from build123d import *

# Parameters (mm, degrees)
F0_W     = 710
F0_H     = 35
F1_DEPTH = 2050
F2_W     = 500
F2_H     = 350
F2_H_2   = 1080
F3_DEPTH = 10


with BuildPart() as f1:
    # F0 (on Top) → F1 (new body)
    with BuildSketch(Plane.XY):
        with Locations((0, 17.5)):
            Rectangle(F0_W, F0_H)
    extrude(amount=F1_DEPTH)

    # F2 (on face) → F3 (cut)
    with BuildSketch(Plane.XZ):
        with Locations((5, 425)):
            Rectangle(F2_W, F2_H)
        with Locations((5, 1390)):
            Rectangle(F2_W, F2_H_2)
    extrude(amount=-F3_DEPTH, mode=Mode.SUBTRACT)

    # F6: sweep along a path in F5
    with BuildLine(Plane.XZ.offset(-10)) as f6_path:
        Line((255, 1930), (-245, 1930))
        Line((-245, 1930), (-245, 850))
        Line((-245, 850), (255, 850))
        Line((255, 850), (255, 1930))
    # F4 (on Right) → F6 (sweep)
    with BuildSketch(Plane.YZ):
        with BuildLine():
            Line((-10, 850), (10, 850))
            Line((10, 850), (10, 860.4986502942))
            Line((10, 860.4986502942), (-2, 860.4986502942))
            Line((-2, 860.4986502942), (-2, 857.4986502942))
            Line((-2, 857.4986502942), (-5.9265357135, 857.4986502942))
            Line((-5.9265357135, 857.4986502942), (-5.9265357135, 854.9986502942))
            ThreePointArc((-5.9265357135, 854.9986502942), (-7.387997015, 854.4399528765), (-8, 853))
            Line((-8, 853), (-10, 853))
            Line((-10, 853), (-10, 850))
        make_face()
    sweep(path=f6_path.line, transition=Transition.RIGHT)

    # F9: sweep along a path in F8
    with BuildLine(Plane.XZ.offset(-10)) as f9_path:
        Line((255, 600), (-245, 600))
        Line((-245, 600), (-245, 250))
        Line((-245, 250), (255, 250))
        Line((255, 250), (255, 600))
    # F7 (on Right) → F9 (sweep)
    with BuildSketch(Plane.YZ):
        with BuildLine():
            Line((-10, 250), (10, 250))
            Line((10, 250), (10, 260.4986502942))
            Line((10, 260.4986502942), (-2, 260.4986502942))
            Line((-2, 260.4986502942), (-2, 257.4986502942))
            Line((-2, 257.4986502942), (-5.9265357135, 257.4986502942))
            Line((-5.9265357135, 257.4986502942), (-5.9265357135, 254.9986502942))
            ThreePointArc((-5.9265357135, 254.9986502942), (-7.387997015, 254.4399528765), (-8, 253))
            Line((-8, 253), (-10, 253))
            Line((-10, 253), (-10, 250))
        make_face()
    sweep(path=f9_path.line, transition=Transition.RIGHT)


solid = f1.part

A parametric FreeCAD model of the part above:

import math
import FreeCAD as App
import Part
import Sketcher

V = App.Vector


def add_polygon(sketch, points):
    """Adds a closed chain of lines whose ends are joined by coincident constraints."""
    first, n = sketch.GeometryCount, len(points)
    for a, b in zip(points, points[1:] + points[:1]):
        sketch.addGeometry(Part.LineSegment(App.Vector(*a, 0), App.Vector(*b, 0)), False)
    for i in range(n):
        sketch.addConstraint(Sketcher.Constraint("Coincident", first + i, 2, first + (i + 1) % n, 1))

doc = App.newDocument("Part")
body = doc.addObject("PartDesign::Body", "Body")

sketch1 = doc.addObject("Sketcher::SketchObject", "Sketch")
body.addObject(sketch1)
sketch1.AttachmentSupport = (doc.XY_Plane, [""])
sketch1.MapMode = "FlatFace"
add_polygon(sketch1, [(-355, 35), (-355, 0), (355, 0), (355, 35)])
sketch1.addConstraint(Sketcher.Constraint("Vertical", 0))
sketch1.addConstraint(Sketcher.Constraint("Horizontal", 1))
sketch1.addConstraint(Sketcher.Constraint("Vertical", 2))
sketch1.addConstraint(Sketcher.Constraint("Horizontal", 3))
sketch1.addConstraint(Sketcher.Constraint("Symmetric", 0, 2, 1, 2, -1, 1))
sketch1.addConstraint(Sketcher.Constraint("DistanceX", 1, 1, 1, 2, 710.0))
sketch1.addConstraint(Sketcher.Constraint("DistanceY", 0, 2, 0, 1, 35.0))
pad1 = doc.addObject("PartDesign::Pad", "Pad")
body.addObject(pad1)
pad1.Profile = sketch1
pad1.Length = 2050

sketch2 = doc.addObject("Sketcher::SketchObject", "Sketch001")
body.addObject(sketch2)
sketch2.AttachmentSupport = (doc.XZ_Plane, [""])
sketch2.MapMode = "FlatFace"
add_polygon(sketch2, [(-245, 600), (-245, 250), (255, 250), (255, 600)])
add_polygon(sketch2, [(-245, 1930), (-245, 850), (255, 850), (255, 1930)])
sketch2.addConstraint(Sketcher.Constraint("Vertical", 0))
sketch2.addConstraint(Sketcher.Constraint("Horizontal", 1))
sketch2.addConstraint(Sketcher.Constraint("Vertical", 2))
sketch2.addConstraint(Sketcher.Constraint("Horizontal", 3))
sketch2.addConstraint(Sketcher.Constraint("Vertical", 4))
sketch2.addConstraint(Sketcher.Constraint("Horizontal", 5))
sketch2.addConstraint(Sketcher.Constraint("Vertical", 6))
sketch2.addConstraint(Sketcher.Constraint("Horizontal", 7))
sketch2.addConstraint(Sketcher.Constraint("Vertical", 3, 2, 4, 2))
sketch2.addConstraint(Sketcher.Constraint("Vertical", 2, 2, 5, 2))
sketch2.addConstraint(Sketcher.Constraint("DistanceX", 1, 1, 1, 2, 500.0))
sketch2.addConstraint(Sketcher.Constraint("DistanceY", 0, 2, 0, 1, 350.0))
sketch2.addConstraint(Sketcher.Constraint("DistanceY", 4, 2, 4, 1, 1080.0))
sketch2.addConstraint(Sketcher.Constraint("DistanceX", 0, 2, -1, 1, 245.0))
sketch2.addConstraint(Sketcher.Constraint("DistanceY", -1, 1, 0, 2, 250.0))
sketch2.addConstraint(Sketcher.Constraint("DistanceY", -1, 1, 4, 2, 850.0))
pocket1 = doc.addObject("PartDesign::Pocket", "Pocket")
body.addObject(pocket1)
pocket1.Profile = sketch2
pocket1.Length = 10

sketch3 = doc.addObject("Sketcher::SketchObject", "Sketch002")
body.addObject(sketch3)
sketch3.AttachmentSupport = (doc.YZ_Plane, [""])
sketch3.MapMode = "FlatFace"
sketch3.addGeometry(Part.LineSegment(V(-10, 850, 0), V(10, 850, 0)), False)
sketch3.addGeometry(Part.LineSegment(V(10, 850, 0), V(10, 860.49865, 0)), False)
sketch3.addGeometry(Part.LineSegment(V(10, 860.49865, 0), V(-2, 860.49865, 0)), False)
sketch3.addGeometry(Part.LineSegment(V(-2, 860.49865, 0), V(-2, 857.49865, 0)), False)
sketch3.addGeometry(Part.LineSegment(V(-2, 857.49865, 0), V(-5.926536, 857.49865, 0)), False)
sketch3.addGeometry(Part.LineSegment(V(-5.926536, 857.49865, 0), V(-5.926536, 854.99865, 0)), False)
sketch3.addGeometry(Part.ArcOfCircle(Part.Circle(V(-6, 853, 0), V(0, 0, 1), 2), math.radians(87.89493), math.radians(180)), False)
sketch3.addGeometry(Part.LineSegment(V(-8, 853, 0), V(-10, 853, 0)), False)
sketch3.addGeometry(Part.LineSegment(V(-10, 853, 0), V(-10, 850, 0)), False)
sketch3.addConstraint(Sketcher.Constraint("Coincident", 0, 2, 1, 1))
sketch3.addConstraint(Sketcher.Constraint("Coincident", 1, 2, 2, 1))
sketch3.addConstraint(Sketcher.Constraint("Coincident", 2, 2, 3, 1))
sketch3.addConstraint(Sketcher.Constraint("Coincident", 3, 2, 4, 1))
sketch3.addConstraint(Sketcher.Constraint("Coincident", 4, 2, 5, 1))
sketch3.addConstraint(Sketcher.Constraint("Coincident", 5, 2, 6, 1))
sketch3.addConstraint(Sketcher.Constraint("Coincident", 6, 2, 7, 1))
sketch3.addConstraint(Sketcher.Constraint("Coincident", 7, 2, 8, 1))
sketch3.addConstraint(Sketcher.Constraint("Coincident", 8, 2, 0, 1))
sketch3.addConstraint(Sketcher.Constraint("Horizontal", 0))
sketch3.addConstraint(Sketcher.Constraint("Vertical", 1))
sketch3.addConstraint(Sketcher.Constraint("Horizontal", 2))
sketch3.addConstraint(Sketcher.Constraint("Vertical", 3))
sketch3.addConstraint(Sketcher.Constraint("Horizontal", 4))
sketch3.addConstraint(Sketcher.Constraint("Vertical", 5))
sketch3.addConstraint(Sketcher.Constraint("Horizontal", 7))
sketch3.addConstraint(Sketcher.Constraint("Vertical", 8))
sketch3.addConstraint(Sketcher.Constraint("Equal", 3, 8))
sketch3.addConstraint(Sketcher.Constraint("Radius", 6, 2.0))
sketch3.addConstraint(Sketcher.Constraint("DistanceX", 0, 1, 0, 2, 20.0))
sketch3.addConstraint(Sketcher.Constraint("DistanceX", 2, 2, 2, 1, 12.0))
sketch3.addConstraint(Sketcher.Constraint("DistanceX", 7, 2, 7, 1, 2.0))
sketch3.addConstraint(Sketcher.Constraint("DistanceY", 3, 2, 3, 1, 3.0))
sketch3.addConstraint(Sketcher.Constraint("DistanceY", 5, 2, 5, 1, 2.5))
sketch3.addConstraint(Sketcher.Constraint("DistanceX", 6, 3, -1, 1, 6.0))
sketch3.addConstraint(Sketcher.Constraint("DistanceY", -1, 1, 6, 3, 853.0))
sketch3.addConstraint(Sketcher.Constraint("DistanceY", -1, 1, 0, 2, 850.0))
sketch3.addConstraint(Sketcher.Constraint("DistanceY", 1, 1, 1, 2, 10.49865))

sketch4 = doc.addObject("Sketcher::SketchObject", "Sketch003")
body.addObject(sketch4)
sketch4.AttachmentSupport = (doc.XZ_Plane, [""])
sketch4.MapMode = "FlatFace"
sketch4.AttachmentOffset = App.Placement(V(0, 0, -10), App.Rotation())
add_polygon(sketch4, [(255, 1930), (-245, 1930), (-245, 850), (255, 850)])
sketch4.addConstraint(Sketcher.Constraint("Horizontal", 0))
sketch4.addConstraint(Sketcher.Constraint("Vertical", 1))
sketch4.addConstraint(Sketcher.Constraint("Horizontal", 2))
sketch4.addConstraint(Sketcher.Constraint("Vertical", 3))
sketch4.addConstraint(Sketcher.Constraint("DistanceX", 0, 2, 0, 1, 500.0))
sketch4.addConstraint(Sketcher.Constraint("DistanceY", 1, 2, 1, 1, 1080.0))
sketch4.addConstraint(Sketcher.Constraint("DistanceX", 0, 2, -1, 1, 245.0))
sketch4.addConstraint(Sketcher.Constraint("DistanceY", -1, 1, 0, 2, 1930.0))
doc.recompute()

additivepipe = doc.addObject("PartDesign::AdditivePipe", "AdditivePipe")
body.addObject(additivepipe)
additivepipe.Profile = sketch3
additivepipe.Spine = (sketch4, ["Edge1", "Edge2", "Edge3", "Edge4"])
additivepipe.Transition = "Right corner"

sketch5 = doc.addObject("Sketcher::SketchObject", "Sketch004")
body.addObject(sketch5)
sketch5.AttachmentSupport = (doc.YZ_Plane, [""])
sketch5.MapMode = "FlatFace"
sketch5.addGeometry(Part.LineSegment(V(-10, 250, 0), V(10, 250, 0)), False)
sketch5.addGeometry(Part.LineSegment(V(10, 250, 0), V(10, 260.49865, 0)), False)
sketch5.addGeometry(Part.LineSegment(V(10, 260.49865, 0), V(-2, 260.49865, 0)), False)
sketch5.addGeometry(Part.LineSegment(V(-2, 260.49865, 0), V(-2, 257.49865, 0)), False)
sketch5.addGeometry(Part.LineSegment(V(-2, 257.49865, 0), V(-5.926536, 257.49865, 0)), False)
sketch5.addGeometry(Part.LineSegment(V(-5.926536, 257.49865, 0), V(-5.926536, 254.99865, 0)), False)
sketch5.addGeometry(Part.ArcOfCircle(Part.Circle(V(-6, 253, 0), V(0, 0, 1), 2), math.radians(87.89493), math.radians(180)), False)
sketch5.addGeometry(Part.LineSegment(V(-8, 253, 0), V(-10, 253, 0)), False)
sketch5.addGeometry(Part.LineSegment(V(-10, 253, 0), V(-10, 250, 0)), False)
sketch5.addConstraint(Sketcher.Constraint("Coincident", 0, 2, 1, 1))
sketch5.addConstraint(Sketcher.Constraint("Coincident", 1, 2, 2, 1))
sketch5.addConstraint(Sketcher.Constraint("Coincident", 2, 2, 3, 1))
sketch5.addConstraint(Sketcher.Constraint("Coincident", 3, 2, 4, 1))
sketch5.addConstraint(Sketcher.Constraint("Coincident", 4, 2, 5, 1))
sketch5.addConstraint(Sketcher.Constraint("Coincident", 5, 2, 6, 1))
sketch5.addConstraint(Sketcher.Constraint("Coincident", 6, 2, 7, 1))
sketch5.addConstraint(Sketcher.Constraint("Coincident", 7, 2, 8, 1))
sketch5.addConstraint(Sketcher.Constraint("Coincident", 8, 2, 0, 1))
sketch5.addConstraint(Sketcher.Constraint("Horizontal", 0))
sketch5.addConstraint(Sketcher.Constraint("Vertical", 1))
sketch5.addConstraint(Sketcher.Constraint("Horizontal", 2))
sketch5.addConstraint(Sketcher.Constraint("Vertical", 3))
sketch5.addConstraint(Sketcher.Constraint("Horizontal", 4))
sketch5.addConstraint(Sketcher.Constraint("Vertical", 5))
sketch5.addConstraint(Sketcher.Constraint("Horizontal", 7))
sketch5.addConstraint(Sketcher.Constraint("Vertical", 8))
sketch5.addConstraint(Sketcher.Constraint("Equal", 3, 8))
sketch5.addConstraint(Sketcher.Constraint("Radius", 6, 2.0))
sketch5.addConstraint(Sketcher.Constraint("DistanceX", 0, 1, 0, 2, 20.0))
sketch5.addConstraint(Sketcher.Constraint("DistanceX", 2, 2, 2, 1, 12.0))
sketch5.addConstraint(Sketcher.Constraint("DistanceX", 7, 2, 7, 1, 2.0))
sketch5.addConstraint(Sketcher.Constraint("DistanceY", 3, 2, 3, 1, 3.0))
sketch5.addConstraint(Sketcher.Constraint("DistanceY", 5, 2, 5, 1, 2.5))
sketch5.addConstraint(Sketcher.Constraint("DistanceX", 6, 3, -1, 1, 6.0))
sketch5.addConstraint(Sketcher.Constraint("DistanceY", -1, 1, 6, 3, 253.0))
sketch5.addConstraint(Sketcher.Constraint("DistanceY", -1, 1, 0, 2, 250.0))
sketch5.addConstraint(Sketcher.Constraint("DistanceY", 1, 1, 1, 2, 10.49865))

sketch6 = doc.addObject("Sketcher::SketchObject", "Sketch005")
body.addObject(sketch6)
sketch6.AttachmentSupport = (doc.XZ_Plane, [""])
sketch6.MapMode = "FlatFace"
sketch6.AttachmentOffset = App.Placement(V(0, 0, -10), App.Rotation())
add_polygon(sketch6, [(255, 600), (-245, 600), (-245, 250), (255, 250)])
sketch6.addConstraint(Sketcher.Constraint("Horizontal", 0))
sketch6.addConstraint(Sketcher.Constraint("Vertical", 1))
sketch6.addConstraint(Sketcher.Constraint("Horizontal", 2))
sketch6.addConstraint(Sketcher.Constraint("Vertical", 3))
sketch6.addConstraint(Sketcher.Constraint("DistanceX", 0, 2, 0, 1, 500.0))
sketch6.addConstraint(Sketcher.Constraint("DistanceY", 1, 2, 1, 1, 350.0))
sketch6.addConstraint(Sketcher.Constraint("DistanceX", 0, 2, -1, 1, 245.0))
sketch6.addConstraint(Sketcher.Constraint("DistanceY", -1, 1, 0, 2, 600.0))
doc.recompute()

additivepipe2 = doc.addObject("PartDesign::AdditivePipe", "AdditivePipe001")
body.addObject(additivepipe2)
additivepipe2.Profile = sketch5
additivepipe2.Spine = (sketch6, ["Edge1", "Edge2", "Edge3", "Edge4"])
additivepipe2.Transition = "Right corner"

doc.recompute()
